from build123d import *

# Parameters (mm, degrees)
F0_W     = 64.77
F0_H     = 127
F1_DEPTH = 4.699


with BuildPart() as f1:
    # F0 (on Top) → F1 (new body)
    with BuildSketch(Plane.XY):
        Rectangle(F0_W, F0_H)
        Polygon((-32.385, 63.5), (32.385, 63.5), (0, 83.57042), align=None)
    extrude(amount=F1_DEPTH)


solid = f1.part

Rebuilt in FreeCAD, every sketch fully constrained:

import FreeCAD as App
import Part
import Sketcher
Q = App.Units.Quantity

doc = App.newDocument("Part")
body = doc.addObject("PartDesign::Body", "Body")

sketch1 = body.newObject("Sketcher::SketchObject", "Sketch")
sketch1.AttachmentSupport = (doc.getObject("XY_Plane"), [""])
sketch1.MapMode = "FlatFace"
sketch1.addGeometry([
    Part.LineSegment(App.Vector(-32.385, 63.5, 0), App.Vector(-32.385, -63.5, 0)),
    Part.LineSegment(App.Vector(-32.385, -63.5, 0), App.Vector(32.385, -63.5, 0)),
    Part.LineSegment(App.Vector(32.385, -63.5, 0), App.Vector(32.385, 63.5, 0)),
    Part.LineSegment(App.Vector(32.385, 63.5, 0), App.Vector(0, 83.57042, 0)),
    Part.LineSegment(App.Vector(0, 83.57042, 0), App.Vector(-32.385, 63.5, 0)),
], False)
sketch1.addConstraint([
    Sketcher.Constraint("Coincident", 0, 2, 1, 1),
    Sketcher.Constraint("Coincident", 1, 2, 2, 1),
    Sketcher.Constraint("Coincident", 2, 2, 3, 1),
    Sketcher.Constraint("Coincident", 3, 2, 4, 1),
    Sketcher.Constraint("Coincident", 4, 2, 0, 1),
    Sketcher.Constraint("Vertical", 0),
    Sketcher.Constraint("Horizontal", 1),
    Sketcher.Constraint("Vertical", 2),
    Sketcher.Constraint("Symmetric", 0, 2, 2, 2, -1, 1),
    Sketcher.Constraint("PointOnObject", 3, 2, -2),
    Sketcher.Constraint("Horizontal", 2, 2, 4, 2),
    Sketcher.Constraint("DistanceY", 0, 2, 0, 1, Q("5 in")),
    Sketcher.Constraint("Distance", 3, Q("1.5 in")),
    Sketcher.Constraint("DistanceX", 1, 1, 1, 2, Q("2.55 in")),
])
pad1 = body.newObject("PartDesign::Pad", "Pad")
pad1.Profile = sketch1
pad1.Length = Q("0.185 in")

doc.recompute()
